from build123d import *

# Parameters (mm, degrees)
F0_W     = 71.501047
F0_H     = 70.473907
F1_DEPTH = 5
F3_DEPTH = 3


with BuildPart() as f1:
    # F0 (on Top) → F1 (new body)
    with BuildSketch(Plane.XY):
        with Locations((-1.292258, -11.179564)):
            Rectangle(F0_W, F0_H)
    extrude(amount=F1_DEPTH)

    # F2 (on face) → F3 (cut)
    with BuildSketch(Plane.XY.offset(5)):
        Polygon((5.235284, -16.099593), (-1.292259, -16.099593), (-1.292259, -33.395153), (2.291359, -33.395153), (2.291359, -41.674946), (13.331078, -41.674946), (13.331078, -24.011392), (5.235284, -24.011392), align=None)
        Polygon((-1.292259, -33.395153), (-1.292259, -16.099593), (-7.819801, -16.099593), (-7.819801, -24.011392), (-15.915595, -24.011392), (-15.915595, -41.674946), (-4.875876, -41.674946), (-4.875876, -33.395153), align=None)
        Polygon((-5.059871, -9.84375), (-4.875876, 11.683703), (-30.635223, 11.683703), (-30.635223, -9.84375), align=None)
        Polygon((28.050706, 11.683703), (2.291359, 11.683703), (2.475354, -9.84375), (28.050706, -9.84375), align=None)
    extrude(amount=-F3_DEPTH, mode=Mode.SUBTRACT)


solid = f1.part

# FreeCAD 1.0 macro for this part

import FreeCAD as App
import Part
import Sketcher
from FreeCAD import Vector


def add_polygon(sketch, points):
    """Adds a closed chain of lines whose ends are joined by coincident constraints."""
    first, n = sketch.GeometryCount, len(points)
    for a, b in zip(points, points[1:] + points[:1]):
        sketch.addGeometry(Part.LineSegment(App.Vector(*a, 0), App.Vector(*b, 0)), False)
    for i in range(n):
        sketch.addConstraint(Sketcher.Constraint("Coincident", first + i, 2, first + (i + 1) % n, 1))

doc = App.newDocument("Part")
body = doc.addObject("PartDesign::Body", "Body")

# Sketch on XY plane
sketch1 = body.newObject("Sketcher::SketchObject", "Sketch")
sketch1.AttachmentSupport = (doc.getObject("XY_Plane"), [""])
sketch1.MapMode = "FlatFace"
add_polygon(sketch1, [(-37, 24), (-37, -46), (34, -46), (34, 24)])  # lines 0-3
sketch1.addConstraint(Sketcher.Constraint("Vertical", 0))
sketch1.addConstraint(Sketcher.Constraint("Horizontal", 1))
sketch1.addConstraint(Sketcher.Constraint("Vertical", 2))
sketch1.addConstraint(Sketcher.Constraint("Horizontal", 3))
sketch1.addConstraint(Sketcher.Constraint("DistanceX", 1, 1, 1, 2, 71.501047))
sketch1.addConstraint(Sketcher.Constraint("DistanceY", 0, 2, 0, 1, 70.473907))
sketch1.addConstraint(Sketcher.Constraint("DistanceX", 0, 2, -1, 1, 37.042781))
sketch1.addConstraint(Sketcher.Constraint("DistanceY", -1, 1, 2, 2, 24.057389))
pad1 = body.newObject("PartDesign::Pad", "Pad")
pad1.Profile = sketch1
pad1.Length = 5

# Sketch on XY plane
sketch2 = body.newObject("Sketcher::SketchObject", "Sketch001")
sketch2.AttachmentSupport = (doc.getObject("XY_Plane"), [""])
sketch2.MapMode = "FlatFace"
sketch2.AttachmentOffset = App.Placement(Vector(0, 0, 5), App.Rotation())
add_polygon(sketch2, [(5, -16), (-8, -16), (-8, -24), (-16, -24), (-16, -42), (-5, -42), (-5, -33), (2, -33), (2, -42), (13, -42), (13, -24), (5, -24)])  # lines 0-11
add_polygon(sketch2, [(-5, -10), (-5, 12), (-31, 12), (-31, -10)])  # lines 12-15
add_polygon(sketch2, [(28, 12), (2, 12), (2, -10), (28, -10)])  # lines 16-19
sketch2.addConstraint(Sketcher.Constraint("Horizontal", 0))
sketch2.addConstraint(Sketcher.Constraint("Vertical", 1))
sketch2.addConstraint(Sketcher.Constraint("Horizontal", 2))
sketch2.addConstraint(Sketcher.Constraint("Vertical", 3))
sketch2.addConstraint(Sketcher.Constraint("Horizontal", 4))
sketch2.addConstraint(Sketcher.Constraint("Vertical", 5))
sketch2.addConstraint(Sketcher.Constraint("Horizontal", 6))
sketch2.addConstraint(Sketcher.Constraint("Vertical", 7))
sketch2.addConstraint(Sketcher.Constraint("Horizontal", 8))
sketch2.addConstraint(Sketcher.Constraint("Vertical", 9))
sketch2.addConstraint(Sketcher.Constraint("Horizontal", 10))
sketch2.addConstraint(Sketcher.Constraint("Vertical", 11))
sketch2.addConstraint(Sketcher.Constraint("Horizontal", 13))
sketch2.addConstraint(Sketcher.Constraint("Vertical", 14))
sketch2.addConstraint(Sketcher.Constraint("Horizontal", 15))
sketch2.addConstraint(Sketcher.Constraint("Horizontal", 16))
sketch2.addConstraint(Sketcher.Constraint("Horizontal", 18))
sketch2.addConstraint(Sketcher.Constraint("Vertical", 19))
sketch2.addConstraint(Sketcher.Constraint("Horizontal", 4, 2, 7, 2))
sketch2.addConstraint(Sketcher.Constraint("Horizontal", 2, 2, 9, 2))
sketch2.addConstraint(Sketcher.Constraint("Horizontal", 13, 2, 16, 2))
sketch2.addConstraint(Sketcher.Constraint("Horizontal", 15, 2, 17, 2))
sketch2.addConstraint(Sketcher.Constraint("Vertical", 5, 2, 12, 2))
sketch2.addConstraint(Sketcher.Constraint("Vertical", 7, 2, 16, 2))
sketch2.addConstraint(Sketcher.Constraint("Equal", 4, 8))
sketch2.addConstraint(Sketcher.Constraint("Equal", 2, 10))
sketch2.addConstraint(Sketcher.Constraint("Equal", 13, 16))
sketch2.addConstraint(Sketcher.Constraint("Equal", 15, 18))
sketch2.addConstraint(Sketcher.Constraint("DistanceY", 1, 2, 1, 1, 7.911799))
sketch2.addConstraint(Sketcher.Constraint("DistanceX", 4, 1, 4, 2, 11.039719))
sketch2.addConstraint(Sketcher.Constraint("DistanceX", 15, 1, 15, 2, 25.575352))
sketch2.addConstraint(Sketcher.Constraint("DistanceX", 0, 2, -1, 1, 7.819801))
sketch2.addConstraint(Sketcher.Constraint("Distance", 12, 21.528239))
sketch2.addConstraint(Sketcher.Constraint("DistanceX", 0, 2, 0, 1, 13.055085))
sketch2.addConstraint(Sketcher.Constraint("DistanceX", 2, 2, 2, 1, 8.095794))
sketch2.addConstraint(Sketcher.Constraint("DistanceX", 13, 2, 13, 1, 25.759347))
sketch2.addConstraint(Sketcher.Constraint("DistanceY", 3, 2, 3, 1, 17.663554))
sketch2.addConstraint(Sketcher.Constraint("DistanceY", 5, 1, 5, 2, 8.279793))
sketch2.addConstraint(Sketcher.Constraint("DistanceY", 14, 2, -1, 1, 9.84375))
sketch2.addConstraint(Sketcher.Constraint("DistanceY", 0, 2, -1, 1, 16.099593))
pocket1 = body.newObject("PartDesign::Pocket", "Pocket")
pocket1.Profile = sketch2
pocket1.Length = 3

doc.recompute()
